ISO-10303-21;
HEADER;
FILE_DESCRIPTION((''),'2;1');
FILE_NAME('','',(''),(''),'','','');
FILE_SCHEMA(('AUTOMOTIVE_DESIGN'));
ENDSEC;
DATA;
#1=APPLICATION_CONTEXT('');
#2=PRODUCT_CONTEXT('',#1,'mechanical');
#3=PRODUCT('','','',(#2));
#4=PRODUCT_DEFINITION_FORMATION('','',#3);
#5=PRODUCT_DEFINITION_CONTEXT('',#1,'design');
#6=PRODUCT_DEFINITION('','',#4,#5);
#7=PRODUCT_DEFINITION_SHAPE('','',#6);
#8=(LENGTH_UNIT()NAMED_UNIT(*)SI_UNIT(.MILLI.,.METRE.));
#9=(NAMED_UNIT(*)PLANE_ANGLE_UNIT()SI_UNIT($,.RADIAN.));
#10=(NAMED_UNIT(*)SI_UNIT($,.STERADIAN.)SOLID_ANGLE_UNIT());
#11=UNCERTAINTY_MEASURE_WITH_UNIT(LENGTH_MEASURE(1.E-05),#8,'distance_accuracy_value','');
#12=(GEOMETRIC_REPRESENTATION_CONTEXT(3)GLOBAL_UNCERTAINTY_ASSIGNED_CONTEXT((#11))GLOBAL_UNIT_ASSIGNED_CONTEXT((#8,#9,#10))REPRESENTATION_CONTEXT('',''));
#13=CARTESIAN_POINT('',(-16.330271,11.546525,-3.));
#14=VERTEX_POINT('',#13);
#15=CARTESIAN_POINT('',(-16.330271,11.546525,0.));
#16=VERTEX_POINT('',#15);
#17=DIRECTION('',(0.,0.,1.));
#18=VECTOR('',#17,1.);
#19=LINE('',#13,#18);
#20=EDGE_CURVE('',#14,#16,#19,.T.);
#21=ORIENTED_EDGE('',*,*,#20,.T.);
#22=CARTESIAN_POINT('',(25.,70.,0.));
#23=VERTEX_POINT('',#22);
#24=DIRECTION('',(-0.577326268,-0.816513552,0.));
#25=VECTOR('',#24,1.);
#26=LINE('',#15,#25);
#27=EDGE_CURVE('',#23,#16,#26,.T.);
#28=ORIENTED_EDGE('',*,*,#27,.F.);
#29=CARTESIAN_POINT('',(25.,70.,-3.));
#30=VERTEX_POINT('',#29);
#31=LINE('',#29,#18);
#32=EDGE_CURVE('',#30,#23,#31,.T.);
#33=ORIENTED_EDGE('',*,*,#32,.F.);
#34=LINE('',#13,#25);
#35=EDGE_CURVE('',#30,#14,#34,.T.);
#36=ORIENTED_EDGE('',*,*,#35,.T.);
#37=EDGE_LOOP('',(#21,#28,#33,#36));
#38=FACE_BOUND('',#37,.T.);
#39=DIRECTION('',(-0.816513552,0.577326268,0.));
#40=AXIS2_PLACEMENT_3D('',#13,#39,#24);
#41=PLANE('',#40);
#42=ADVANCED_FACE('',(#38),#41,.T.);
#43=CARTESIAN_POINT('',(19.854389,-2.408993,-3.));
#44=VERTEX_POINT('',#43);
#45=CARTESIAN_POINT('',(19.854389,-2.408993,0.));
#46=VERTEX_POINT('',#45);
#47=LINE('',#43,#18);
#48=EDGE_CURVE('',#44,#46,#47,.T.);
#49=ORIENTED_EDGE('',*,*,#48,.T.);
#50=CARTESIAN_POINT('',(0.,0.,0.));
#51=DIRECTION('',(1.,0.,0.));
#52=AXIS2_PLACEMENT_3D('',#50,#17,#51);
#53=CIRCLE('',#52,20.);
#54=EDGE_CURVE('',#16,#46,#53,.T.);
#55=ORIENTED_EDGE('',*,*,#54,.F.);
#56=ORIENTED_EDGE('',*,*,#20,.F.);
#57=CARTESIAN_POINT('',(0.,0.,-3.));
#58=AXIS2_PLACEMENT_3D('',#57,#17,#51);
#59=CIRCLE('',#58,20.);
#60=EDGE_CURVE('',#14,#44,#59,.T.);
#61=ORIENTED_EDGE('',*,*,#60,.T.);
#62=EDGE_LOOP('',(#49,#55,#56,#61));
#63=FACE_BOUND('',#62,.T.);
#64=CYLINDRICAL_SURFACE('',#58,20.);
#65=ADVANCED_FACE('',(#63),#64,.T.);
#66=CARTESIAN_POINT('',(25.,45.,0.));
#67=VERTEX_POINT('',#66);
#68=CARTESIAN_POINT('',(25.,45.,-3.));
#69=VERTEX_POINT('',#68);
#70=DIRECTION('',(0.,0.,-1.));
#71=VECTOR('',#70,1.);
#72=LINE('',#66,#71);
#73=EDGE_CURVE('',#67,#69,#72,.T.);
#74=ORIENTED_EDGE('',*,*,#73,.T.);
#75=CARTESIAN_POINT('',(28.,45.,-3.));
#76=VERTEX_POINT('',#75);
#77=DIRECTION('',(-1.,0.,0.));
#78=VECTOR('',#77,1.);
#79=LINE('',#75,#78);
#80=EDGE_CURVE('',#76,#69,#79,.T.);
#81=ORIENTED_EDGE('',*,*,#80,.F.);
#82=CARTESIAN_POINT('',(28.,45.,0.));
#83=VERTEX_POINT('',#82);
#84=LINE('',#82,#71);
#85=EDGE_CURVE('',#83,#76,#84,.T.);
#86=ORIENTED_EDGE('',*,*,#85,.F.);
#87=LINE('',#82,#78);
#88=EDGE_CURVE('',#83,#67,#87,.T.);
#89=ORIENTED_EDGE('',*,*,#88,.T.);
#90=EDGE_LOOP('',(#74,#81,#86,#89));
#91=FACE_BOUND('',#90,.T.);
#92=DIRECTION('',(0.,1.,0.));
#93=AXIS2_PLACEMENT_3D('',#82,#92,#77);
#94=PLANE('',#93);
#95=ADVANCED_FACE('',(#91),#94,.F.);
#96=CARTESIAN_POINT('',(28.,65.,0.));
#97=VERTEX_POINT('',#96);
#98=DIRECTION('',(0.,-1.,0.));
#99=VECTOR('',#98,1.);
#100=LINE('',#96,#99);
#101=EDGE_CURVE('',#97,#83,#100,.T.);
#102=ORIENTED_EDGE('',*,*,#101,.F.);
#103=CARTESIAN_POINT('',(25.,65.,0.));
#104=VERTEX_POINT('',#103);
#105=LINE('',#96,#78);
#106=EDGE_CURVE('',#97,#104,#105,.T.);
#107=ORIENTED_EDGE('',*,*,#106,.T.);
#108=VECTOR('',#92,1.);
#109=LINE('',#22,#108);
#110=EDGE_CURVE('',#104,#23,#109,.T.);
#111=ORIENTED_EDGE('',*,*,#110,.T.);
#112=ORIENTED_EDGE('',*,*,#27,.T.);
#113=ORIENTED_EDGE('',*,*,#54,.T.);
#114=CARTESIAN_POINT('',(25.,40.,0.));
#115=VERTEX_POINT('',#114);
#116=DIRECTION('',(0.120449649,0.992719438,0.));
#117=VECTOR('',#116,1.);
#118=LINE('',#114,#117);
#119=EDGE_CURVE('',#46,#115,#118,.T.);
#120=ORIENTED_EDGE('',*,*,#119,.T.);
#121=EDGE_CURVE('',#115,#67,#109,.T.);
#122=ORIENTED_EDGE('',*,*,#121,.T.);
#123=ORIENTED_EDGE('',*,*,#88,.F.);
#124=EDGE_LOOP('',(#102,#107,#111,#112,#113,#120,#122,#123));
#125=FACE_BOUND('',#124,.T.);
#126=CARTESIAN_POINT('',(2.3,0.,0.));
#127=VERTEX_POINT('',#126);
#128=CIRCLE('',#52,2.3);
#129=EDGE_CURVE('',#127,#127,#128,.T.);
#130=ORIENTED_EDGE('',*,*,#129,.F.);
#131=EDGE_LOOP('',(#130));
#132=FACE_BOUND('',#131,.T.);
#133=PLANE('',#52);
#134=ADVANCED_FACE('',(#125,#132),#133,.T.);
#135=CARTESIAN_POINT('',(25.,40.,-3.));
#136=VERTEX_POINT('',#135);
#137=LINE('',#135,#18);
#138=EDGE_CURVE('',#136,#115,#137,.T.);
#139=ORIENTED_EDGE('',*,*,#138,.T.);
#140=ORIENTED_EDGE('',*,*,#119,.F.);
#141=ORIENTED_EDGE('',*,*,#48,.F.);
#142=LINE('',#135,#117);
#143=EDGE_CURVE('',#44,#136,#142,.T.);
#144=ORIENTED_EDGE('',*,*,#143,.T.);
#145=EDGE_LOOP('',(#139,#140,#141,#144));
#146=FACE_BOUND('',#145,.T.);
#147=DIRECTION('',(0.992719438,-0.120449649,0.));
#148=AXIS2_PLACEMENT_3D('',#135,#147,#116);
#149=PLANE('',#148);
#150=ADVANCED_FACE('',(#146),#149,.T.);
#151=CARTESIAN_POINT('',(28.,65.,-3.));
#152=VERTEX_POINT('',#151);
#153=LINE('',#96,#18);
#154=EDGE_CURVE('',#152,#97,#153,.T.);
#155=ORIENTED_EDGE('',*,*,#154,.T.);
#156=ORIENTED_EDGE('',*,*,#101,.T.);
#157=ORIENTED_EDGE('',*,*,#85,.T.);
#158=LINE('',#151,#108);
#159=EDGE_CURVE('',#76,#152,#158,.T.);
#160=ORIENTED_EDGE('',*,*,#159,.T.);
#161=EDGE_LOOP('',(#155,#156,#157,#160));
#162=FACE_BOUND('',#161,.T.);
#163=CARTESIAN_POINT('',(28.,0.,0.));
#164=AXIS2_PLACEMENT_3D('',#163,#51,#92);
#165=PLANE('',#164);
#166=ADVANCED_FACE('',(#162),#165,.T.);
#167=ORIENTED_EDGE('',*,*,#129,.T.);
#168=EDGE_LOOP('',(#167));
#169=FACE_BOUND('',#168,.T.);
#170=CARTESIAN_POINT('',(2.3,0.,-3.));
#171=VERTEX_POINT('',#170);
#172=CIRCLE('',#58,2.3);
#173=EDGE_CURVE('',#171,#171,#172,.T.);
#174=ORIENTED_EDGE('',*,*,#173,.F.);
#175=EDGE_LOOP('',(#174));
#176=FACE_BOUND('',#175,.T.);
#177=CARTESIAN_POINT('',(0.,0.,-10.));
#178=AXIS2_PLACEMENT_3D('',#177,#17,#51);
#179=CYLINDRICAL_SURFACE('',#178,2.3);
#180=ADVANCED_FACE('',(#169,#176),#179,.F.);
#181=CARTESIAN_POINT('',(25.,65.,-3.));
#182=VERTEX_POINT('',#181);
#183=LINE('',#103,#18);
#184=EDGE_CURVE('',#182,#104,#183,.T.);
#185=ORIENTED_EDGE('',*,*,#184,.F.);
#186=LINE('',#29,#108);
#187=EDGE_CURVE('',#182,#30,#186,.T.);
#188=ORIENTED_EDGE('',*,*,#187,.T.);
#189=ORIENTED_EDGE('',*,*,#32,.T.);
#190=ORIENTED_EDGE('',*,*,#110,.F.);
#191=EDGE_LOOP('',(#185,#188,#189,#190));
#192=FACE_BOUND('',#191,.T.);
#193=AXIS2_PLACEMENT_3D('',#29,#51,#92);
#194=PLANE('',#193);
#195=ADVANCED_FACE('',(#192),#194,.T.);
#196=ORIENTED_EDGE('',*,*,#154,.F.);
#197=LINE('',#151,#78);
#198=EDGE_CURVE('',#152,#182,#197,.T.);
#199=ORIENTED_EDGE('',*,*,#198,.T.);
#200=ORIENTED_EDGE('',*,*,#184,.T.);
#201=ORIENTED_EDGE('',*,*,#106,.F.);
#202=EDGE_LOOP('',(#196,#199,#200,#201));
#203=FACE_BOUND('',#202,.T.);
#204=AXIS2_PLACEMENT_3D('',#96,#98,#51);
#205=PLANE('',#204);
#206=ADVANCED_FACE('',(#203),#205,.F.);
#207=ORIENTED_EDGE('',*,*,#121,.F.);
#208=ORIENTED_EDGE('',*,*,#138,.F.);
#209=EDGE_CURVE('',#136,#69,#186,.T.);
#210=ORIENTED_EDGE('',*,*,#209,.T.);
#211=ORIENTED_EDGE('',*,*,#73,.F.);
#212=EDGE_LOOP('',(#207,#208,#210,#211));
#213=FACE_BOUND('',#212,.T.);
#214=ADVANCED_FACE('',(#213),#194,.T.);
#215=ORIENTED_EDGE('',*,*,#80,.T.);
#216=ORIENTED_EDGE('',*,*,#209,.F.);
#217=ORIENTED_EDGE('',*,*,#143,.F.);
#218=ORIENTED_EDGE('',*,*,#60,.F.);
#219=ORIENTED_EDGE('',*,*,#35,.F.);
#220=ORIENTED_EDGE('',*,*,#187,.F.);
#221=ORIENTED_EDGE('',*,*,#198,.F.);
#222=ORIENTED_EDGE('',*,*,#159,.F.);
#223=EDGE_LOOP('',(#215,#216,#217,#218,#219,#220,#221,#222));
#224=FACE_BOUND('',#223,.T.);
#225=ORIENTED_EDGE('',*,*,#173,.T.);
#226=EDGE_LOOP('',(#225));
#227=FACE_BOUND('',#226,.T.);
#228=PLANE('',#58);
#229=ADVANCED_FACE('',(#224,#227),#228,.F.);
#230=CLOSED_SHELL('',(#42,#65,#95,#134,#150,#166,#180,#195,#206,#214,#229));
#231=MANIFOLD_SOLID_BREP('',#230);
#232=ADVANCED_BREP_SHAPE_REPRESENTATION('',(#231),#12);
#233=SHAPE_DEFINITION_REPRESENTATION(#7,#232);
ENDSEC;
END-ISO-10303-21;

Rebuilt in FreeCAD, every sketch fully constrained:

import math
import FreeCAD as App
import Part
import Sketcher
Q = App.Units.Quantity

doc = App.newDocument("Part")
body = doc.addObject("PartDesign::Body", "Body")

# Sketch on XY plane
sketch1 = body.newObject("Sketcher::SketchObject", "Sketch")
sketch1.AttachmentSupport = (doc.getObject("XY_Plane"), [""])
sketch1.MapMode = "FlatFace"
sketch1.addGeometry(Part.LineSegment(App.Vector(25, 70, 0), App.Vector(-16, 12, 0)), False)
sketch1.addGeometry(Part.ArcOfCircle(Part.Circle(App.Vector(0, 0, 0), App.Vector(0, 0, 1), 20), math.radians(145), math.radians(353)), False)
sketch1.addGeometry(Part.LineSegment(App.Vector(20, -2, 0), App.Vector(25, 40, 0)), False)
sketch1.addGeometry(Part.LineSegment(App.Vector(25, 40, 0), App.Vector(25, 70, 0)), False)
sketch1.addConstraint(Sketcher.Constraint("Tangent", 0, 2, 1, 1))
sketch1.addConstraint(Sketcher.Constraint("Tangent", 1, 2, 2, 1))
sketch1.addConstraint(Sketcher.Constraint("Coincident", 2, 2, 3, 1))
sketch1.addConstraint(Sketcher.Constraint("Coincident", 3, 2, 0, 1))
sketch1.addConstraint(Sketcher.Constraint("Vertical", 3))
sketch1.addConstraint(Sketcher.Constraint("Coincident", 1, 3, -1, 1))
sketch1.addConstraint(Sketcher.Constraint("Radius", 1, Q("20 mm")))
sketch1.addConstraint(Sketcher.Constraint("DistanceY", 3, 1, 3, 2, Q("30 mm")))
sketch1.addConstraint(Sketcher.Constraint("DistanceX", -1, 1, 2, 2, Q("25 mm")))
sketch1.addConstraint(Sketcher.Constraint("DistanceY", -1, 1, 2, 2, Q("40 mm")))
pad1 = body.newObject("PartDesign::Pad", "Pad")
pad1.Profile = sketch1
pad1.Length = 3
pad1.Reversed = True

# Sketch on XY plane
sketch2 = body.newObject("Sketcher::SketchObject", "Sketch001")
sketch2.AttachmentSupport = (doc.getObject("XY_Plane"), [""])
sketch2.MapMode = "FlatFace"
sketch2.addGeometry(Part.Circle(App.Vector(0, 0, 0), App.Vector(0, 0, 1), 2.3), False)
sketch2.addConstraint(Sketcher.Constraint("Coincident", 0, 3, -1, 1))
sketch2.addConstraint(Sketcher.Constraint("Diameter", 0, Q("4.6 mm")))
pocket1 = body.newObject("PartDesign::Pocket", "Pocket")
pocket1.Profile = sketch2
pocket1.Length = 10

# Sketch on YZ plane
sketch3 = body.newObject("Sketcher::SketchObject", "Sketch002")
sketch3.AttachmentSupport = (doc.getObject("YZ_Plane"), [""])
sketch3.MapMode = "FlatFace"
sketch3.AttachmentOffset = App.Placement(App.Vector(0, 0, 25), App.Rotation())
sketch3.addGeometry(Part.LineSegment(App.Vector(65, 0, 0), App.Vector(45, 0, 0)), False)
sketch3.addGeometry(Part.LineSegment(App.Vector(45, 0, 0), App.Vector(45, -3, 0)), False)
sketch3.addGeometry(Part.LineSegment(App.Vector(45, -3, 0), App.Vector(65, -3, 0)), False)
sketch3.addGeometry(Part.LineSegment(App.Vector(65, -3, 0), App.Vector(65, 0, 0)), False)
sketch3.addConstraint(Sketcher.Constraint("Coincident", 0, 2, 1, 1))
sketch3.addConstraint(Sketcher.Constraint("Coincident", 1, 2, 2, 1))
sketch3.addConstraint(Sketcher.Constraint("Coincident", 2, 2, 3, 1))
sketch3.addConstraint(Sketcher.Constraint("Coincident", 3, 2, 0, 1))
sketch3.addConstraint(Sketcher.Constraint("Horizontal", 0))
sketch3.addConstraint(Sketcher.Constraint("Vertical", 1))
sketch3.addConstraint(Sketcher.Constraint("Horizontal", 2))
sketch3.addConstraint(Sketcher.Constraint("Vertical", 3))
sketch3.addConstraint(Sketcher.Constraint("PointOnObject", 0, 2, -1))
sketch3.addConstraint(Sketcher.Constraint("DistanceX", 0, 2, 0, 1, Q("20 mm")))
sketch3.addConstraint(Sketcher.Constraint("DistanceY", 1, 2, 1, 1, Q("3 mm")))
sketch3.addConstraint(Sketcher.Constraint("DistanceX", -1, 1, 0, 2, Q("45 mm")))
pad2 = body.newObject("PartDesign::Pad", "Pad001")
pad2.Profile = sketch3
pad2.Length = 3

doc.recompute()
